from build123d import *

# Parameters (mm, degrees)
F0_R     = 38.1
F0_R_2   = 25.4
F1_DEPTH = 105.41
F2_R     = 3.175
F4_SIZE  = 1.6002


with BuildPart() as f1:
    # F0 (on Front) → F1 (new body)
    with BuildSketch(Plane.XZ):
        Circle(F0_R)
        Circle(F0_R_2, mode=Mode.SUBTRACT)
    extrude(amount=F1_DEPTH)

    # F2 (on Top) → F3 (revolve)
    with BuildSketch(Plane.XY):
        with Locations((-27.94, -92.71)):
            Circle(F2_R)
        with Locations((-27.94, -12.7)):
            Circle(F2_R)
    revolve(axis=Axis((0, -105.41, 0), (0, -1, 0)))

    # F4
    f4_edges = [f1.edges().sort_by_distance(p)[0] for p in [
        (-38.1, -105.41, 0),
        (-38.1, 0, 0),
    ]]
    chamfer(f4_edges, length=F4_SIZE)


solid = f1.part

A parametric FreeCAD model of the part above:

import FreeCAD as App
import Part
import Sketcher
Q = App.Units.Quantity


def edges_at(feature, points):
    """Names of the edges that pass closest to the given points."""
    edges = feature.Shape.Edges
    near = lambda p: min(range(len(edges)), key=lambda i: edges[i].distToShape(Part.Vertex(*p))[0])
    return sorted({f"Edge{near(p) + 1}" for p in points})

doc = App.newDocument("Part")
body = doc.addObject("PartDesign::Body", "Body")

sketch1 = doc.addObject("Sketcher::SketchObject", "Sketch")
body.addObject(sketch1)
sketch1.AttachmentSupport = (doc.XZ_Plane, [""])
sketch1.MapMode = "FlatFace"
sketch1.addGeometry(Part.Circle(App.Vector(0, 0, 0), App.Vector(0, 0, 1), 38.1), False)
sketch1.addGeometry(Part.Circle(App.Vector(0, 0, 0), App.Vector(0, 0, 1), 25.4), False)
sketch1.addConstraint(Sketcher.Constraint("Coincident", 0, 3, -1, 1))
sketch1.addConstraint(Sketcher.Constraint("Coincident", 1, 3, -1, 1))
sketch1.addConstraint(Sketcher.Constraint("Diameter", 0, Q("3 in")))
sketch1.addConstraint(Sketcher.Constraint("Diameter", 1, Q("2 in")))
pad1 = doc.addObject("PartDesign::Pad", "Pad")
body.addObject(pad1)
pad1.Profile = sketch1
pad1.Length = Q("4.15 in")

sketch2 = doc.addObject("Sketcher::SketchObject", "Sketch001")
body.addObject(sketch2)
sketch2.AttachmentSupport = (doc.XY_Plane, [""])
sketch2.MapMode = "FlatFace"
sketch2.addGeometry(Part.Circle(App.Vector(-27.94, -92.71, 0), App.Vector(0, 0, 1), 3.175), False)
sketch2.addGeometry(Part.Circle(App.Vector(-27.94, -12.7, 0), App.Vector(0, 0, 1), 3.175), False)
sketch2.addConstraint(Sketcher.Constraint("Equal", 0, 1))
sketch2.addConstraint(Sketcher.Constraint("Vertical", 0, 3, 1, 3))
sketch2.addConstraint(Sketcher.Constraint("Diameter", 0, Q("0.25 in")))
sketch2.addConstraint(Sketcher.Constraint("DistanceX", 0, 3, -1, 1, Q("1.1 in")))
sketch2.addConstraint(Sketcher.Constraint("DistanceY", 1, 3, -1, 1, Q("0.5 in")))
sketch2.addConstraint(Sketcher.Constraint("DistanceY", 0, 3, -1, 1, Q("3.65 in")))
revolution = doc.addObject("PartDesign::Revolution", "Revolution")
body.addObject(revolution)
revolution.Profile = sketch2
revolution.ReferenceAxis = (sketch2, ["V_Axis"])
revolution.Angle = 360
doc.recompute()

chamfer = doc.addObject("PartDesign::Chamfer", "Chamfer")
body.addObject(chamfer)
chamfer.Base = (revolution, edges_at(revolution, [(-38.1, -105.41, 0), (-38.1, 0, 0)]))
chamfer.Size = Q("0.063 in")

doc.recompute()
